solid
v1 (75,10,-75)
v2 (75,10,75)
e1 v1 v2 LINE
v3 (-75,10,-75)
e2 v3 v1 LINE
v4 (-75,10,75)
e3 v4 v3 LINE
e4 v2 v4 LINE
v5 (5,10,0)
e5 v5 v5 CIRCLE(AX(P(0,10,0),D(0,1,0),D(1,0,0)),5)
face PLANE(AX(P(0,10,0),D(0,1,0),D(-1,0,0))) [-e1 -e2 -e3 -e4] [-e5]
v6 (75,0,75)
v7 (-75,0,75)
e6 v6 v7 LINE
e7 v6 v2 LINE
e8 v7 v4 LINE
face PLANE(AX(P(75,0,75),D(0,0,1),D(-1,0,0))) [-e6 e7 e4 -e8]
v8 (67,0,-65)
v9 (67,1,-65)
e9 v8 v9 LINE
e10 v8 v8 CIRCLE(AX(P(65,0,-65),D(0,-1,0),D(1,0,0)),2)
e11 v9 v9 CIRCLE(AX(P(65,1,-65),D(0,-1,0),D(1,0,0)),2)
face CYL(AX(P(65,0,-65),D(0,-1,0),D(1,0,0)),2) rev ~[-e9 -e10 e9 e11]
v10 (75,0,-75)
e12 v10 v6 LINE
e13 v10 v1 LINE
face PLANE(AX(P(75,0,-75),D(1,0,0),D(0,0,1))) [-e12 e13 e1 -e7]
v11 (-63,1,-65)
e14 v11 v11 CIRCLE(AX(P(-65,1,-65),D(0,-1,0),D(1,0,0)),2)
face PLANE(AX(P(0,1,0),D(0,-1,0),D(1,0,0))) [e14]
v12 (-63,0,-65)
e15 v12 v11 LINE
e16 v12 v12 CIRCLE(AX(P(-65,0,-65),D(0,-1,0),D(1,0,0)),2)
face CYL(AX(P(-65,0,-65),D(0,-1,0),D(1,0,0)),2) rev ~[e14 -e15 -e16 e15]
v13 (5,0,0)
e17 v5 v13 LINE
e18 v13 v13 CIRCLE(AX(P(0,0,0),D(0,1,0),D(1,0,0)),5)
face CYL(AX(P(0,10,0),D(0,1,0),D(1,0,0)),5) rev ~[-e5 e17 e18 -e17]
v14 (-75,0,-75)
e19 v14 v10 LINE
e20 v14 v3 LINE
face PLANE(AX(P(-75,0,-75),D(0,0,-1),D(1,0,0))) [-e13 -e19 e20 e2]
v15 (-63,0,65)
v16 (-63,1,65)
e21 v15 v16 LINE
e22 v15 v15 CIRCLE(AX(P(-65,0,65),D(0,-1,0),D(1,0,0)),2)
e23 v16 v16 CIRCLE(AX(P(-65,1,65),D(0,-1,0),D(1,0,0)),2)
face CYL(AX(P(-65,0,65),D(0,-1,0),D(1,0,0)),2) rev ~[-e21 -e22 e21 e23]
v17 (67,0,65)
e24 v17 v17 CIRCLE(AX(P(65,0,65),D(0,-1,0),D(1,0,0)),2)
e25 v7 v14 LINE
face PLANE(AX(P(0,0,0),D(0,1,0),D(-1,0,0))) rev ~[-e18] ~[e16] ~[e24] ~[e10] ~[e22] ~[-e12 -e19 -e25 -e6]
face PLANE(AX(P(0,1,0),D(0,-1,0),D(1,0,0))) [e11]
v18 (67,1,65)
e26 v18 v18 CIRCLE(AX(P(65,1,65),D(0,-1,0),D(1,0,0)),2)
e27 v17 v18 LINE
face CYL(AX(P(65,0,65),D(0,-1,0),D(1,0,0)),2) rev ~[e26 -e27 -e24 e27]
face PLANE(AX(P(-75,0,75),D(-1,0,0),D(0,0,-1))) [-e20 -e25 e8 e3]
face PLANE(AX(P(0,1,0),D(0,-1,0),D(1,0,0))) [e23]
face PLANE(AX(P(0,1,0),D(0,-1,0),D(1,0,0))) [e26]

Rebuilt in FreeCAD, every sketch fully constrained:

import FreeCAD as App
import Part
import Sketcher
from FreeCAD import Vector
Q = App.Units.Quantity

doc = App.newDocument("Part")
body = doc.addObject("PartDesign::Body", "Body")

sketch1 = body.newObject("Sketcher::SketchObject", "Sketch")
sketch1.AttachmentSupport = (doc.getObject("XZ_Plane"), [""])
sketch1.MapMode = "FlatFace"
sketch1.addGeometry(Part.LineSegment(Vector(-75, 75, 0), Vector(75, 75, 0)), False)
sketch1.addGeometry(Part.LineSegment(Vector(75, 75, 0), Vector(75, -75, 0)), False)
sketch1.addGeometry(Part.LineSegment(Vector(75, -75, 0), Vector(-75, -75, 0)), False)
sketch1.addGeometry(Part.LineSegment(Vector(-75, -75, 0), Vector(-75, 75, 0)), False)
sketch1.addConstraint(Sketcher.Constraint("Coincident", 0, 2, 1, 1))
sketch1.addConstraint(Sketcher.Constraint("Coincident", 1, 2, 2, 1))
sketch1.addConstraint(Sketcher.Constraint("Coincident", 2, 2, 3, 1))
sketch1.addConstraint(Sketcher.Constraint("Coincident", 3, 2, 0, 1))
sketch1.addConstraint(Sketcher.Constraint("Horizontal", 0))
sketch1.addConstraint(Sketcher.Constraint("Vertical", 1))
sketch1.addConstraint(Sketcher.Constraint("Horizontal", 2))
sketch1.addConstraint(Sketcher.Constraint("Vertical", 3))
sketch1.addConstraint(Sketcher.Constraint("Symmetric", 0, 2, 2, 2, -1, 1))
sketch1.addConstraint(Sketcher.Constraint("Equal", 2, 1))
sketch1.addConstraint(Sketcher.Constraint("DistanceX", 0, 1, 0, 2, Q("150 mm")))
pad1 = body.newObject("PartDesign::Pad", "Pad")
pad1.Profile = sketch1
pad1.Length = 10
pad1.Reversed = True

sketch2 = body.newObject("Sketcher::SketchObject", "Sketch001")
sketch2.AttachmentSupport = (doc.getObject("XZ_Plane"), [""])
sketch2.MapMode = "FlatFace"
sketch2.AttachmentOffset = App.Placement(Vector(0, 0, -10), App.Rotation())
sketch2.addGeometry(Part.Circle(Vector(0, 0, 0), Vector(0, 0, 1), 5), False)
sketch2.addConstraint(Sketcher.Constraint("Coincident", 0, 3, -1, 1))
sketch2.addConstraint(Sketcher.Constraint("Diameter", 0, Q("10 mm")))
pocket1 = body.newObject("PartDesign::Pocket", "Pocket")
pocket1.Profile = sketch2
pocket1.Type = "ThroughAll"
pocket1.Reversed = True

sketch3 = body.newObject("Sketcher::SketchObject", "Sketch002")
sketch3.AttachmentSupport = (doc.getObject("XZ_Plane"), [""])
sketch3.MapMode = "FlatFace"
sketch3.addGeometry(Part.Circle(Vector(-65, 65, 0), Vector(0, 0, 1), 2), False)
sketch3.addGeometry(Part.Circle(Vector(65, 65, 0), Vector(0, 0, 1), 2), False)
sketch3.addGeometry(Part.Circle(Vector(65, -65, 0), Vector(0, 0, 1), 2), False)
sketch3.addGeometry(Part.Circle(Vector(-65, -65, 0), Vector(0, 0, 1), 2), False)
sketch3.addConstraint(Sketcher.Constraint("Equal", 0, 1))
sketch3.addConstraint(Sketcher.Constraint("Equal", 1, 2))
sketch3.addConstraint(Sketcher.Constraint("Equal", 2, 3))
sketch3.addConstraint(Sketcher.Constraint("Symmetric", 0, 3, 2, 3, -1, 1))
sketch3.addConstraint(Sketcher.Constraint("Symmetric", 1, 3, 3, 3, -1, 1))
sketch3.addConstraint(Sketcher.Constraint("Symmetric", 0, 3, 1, 3, -2))
sketch3.addConstraint(Sketcher.Constraint("Diameter", 0, Q("4 mm")))
sketch3.addConstraint(Sketcher.Constraint("DistanceX", 0, 3, -1, 1, Q("65 mm")))
sketch3.addConstraint(Sketcher.Constraint("DistanceY", -1, 1, 0, 3, Q("65 mm")))
pocket2 = body.newObject("PartDesign::Pocket", "Pocket001")
pocket2.Profile = sketch3
pocket2.Length = 1

doc.recompute()
